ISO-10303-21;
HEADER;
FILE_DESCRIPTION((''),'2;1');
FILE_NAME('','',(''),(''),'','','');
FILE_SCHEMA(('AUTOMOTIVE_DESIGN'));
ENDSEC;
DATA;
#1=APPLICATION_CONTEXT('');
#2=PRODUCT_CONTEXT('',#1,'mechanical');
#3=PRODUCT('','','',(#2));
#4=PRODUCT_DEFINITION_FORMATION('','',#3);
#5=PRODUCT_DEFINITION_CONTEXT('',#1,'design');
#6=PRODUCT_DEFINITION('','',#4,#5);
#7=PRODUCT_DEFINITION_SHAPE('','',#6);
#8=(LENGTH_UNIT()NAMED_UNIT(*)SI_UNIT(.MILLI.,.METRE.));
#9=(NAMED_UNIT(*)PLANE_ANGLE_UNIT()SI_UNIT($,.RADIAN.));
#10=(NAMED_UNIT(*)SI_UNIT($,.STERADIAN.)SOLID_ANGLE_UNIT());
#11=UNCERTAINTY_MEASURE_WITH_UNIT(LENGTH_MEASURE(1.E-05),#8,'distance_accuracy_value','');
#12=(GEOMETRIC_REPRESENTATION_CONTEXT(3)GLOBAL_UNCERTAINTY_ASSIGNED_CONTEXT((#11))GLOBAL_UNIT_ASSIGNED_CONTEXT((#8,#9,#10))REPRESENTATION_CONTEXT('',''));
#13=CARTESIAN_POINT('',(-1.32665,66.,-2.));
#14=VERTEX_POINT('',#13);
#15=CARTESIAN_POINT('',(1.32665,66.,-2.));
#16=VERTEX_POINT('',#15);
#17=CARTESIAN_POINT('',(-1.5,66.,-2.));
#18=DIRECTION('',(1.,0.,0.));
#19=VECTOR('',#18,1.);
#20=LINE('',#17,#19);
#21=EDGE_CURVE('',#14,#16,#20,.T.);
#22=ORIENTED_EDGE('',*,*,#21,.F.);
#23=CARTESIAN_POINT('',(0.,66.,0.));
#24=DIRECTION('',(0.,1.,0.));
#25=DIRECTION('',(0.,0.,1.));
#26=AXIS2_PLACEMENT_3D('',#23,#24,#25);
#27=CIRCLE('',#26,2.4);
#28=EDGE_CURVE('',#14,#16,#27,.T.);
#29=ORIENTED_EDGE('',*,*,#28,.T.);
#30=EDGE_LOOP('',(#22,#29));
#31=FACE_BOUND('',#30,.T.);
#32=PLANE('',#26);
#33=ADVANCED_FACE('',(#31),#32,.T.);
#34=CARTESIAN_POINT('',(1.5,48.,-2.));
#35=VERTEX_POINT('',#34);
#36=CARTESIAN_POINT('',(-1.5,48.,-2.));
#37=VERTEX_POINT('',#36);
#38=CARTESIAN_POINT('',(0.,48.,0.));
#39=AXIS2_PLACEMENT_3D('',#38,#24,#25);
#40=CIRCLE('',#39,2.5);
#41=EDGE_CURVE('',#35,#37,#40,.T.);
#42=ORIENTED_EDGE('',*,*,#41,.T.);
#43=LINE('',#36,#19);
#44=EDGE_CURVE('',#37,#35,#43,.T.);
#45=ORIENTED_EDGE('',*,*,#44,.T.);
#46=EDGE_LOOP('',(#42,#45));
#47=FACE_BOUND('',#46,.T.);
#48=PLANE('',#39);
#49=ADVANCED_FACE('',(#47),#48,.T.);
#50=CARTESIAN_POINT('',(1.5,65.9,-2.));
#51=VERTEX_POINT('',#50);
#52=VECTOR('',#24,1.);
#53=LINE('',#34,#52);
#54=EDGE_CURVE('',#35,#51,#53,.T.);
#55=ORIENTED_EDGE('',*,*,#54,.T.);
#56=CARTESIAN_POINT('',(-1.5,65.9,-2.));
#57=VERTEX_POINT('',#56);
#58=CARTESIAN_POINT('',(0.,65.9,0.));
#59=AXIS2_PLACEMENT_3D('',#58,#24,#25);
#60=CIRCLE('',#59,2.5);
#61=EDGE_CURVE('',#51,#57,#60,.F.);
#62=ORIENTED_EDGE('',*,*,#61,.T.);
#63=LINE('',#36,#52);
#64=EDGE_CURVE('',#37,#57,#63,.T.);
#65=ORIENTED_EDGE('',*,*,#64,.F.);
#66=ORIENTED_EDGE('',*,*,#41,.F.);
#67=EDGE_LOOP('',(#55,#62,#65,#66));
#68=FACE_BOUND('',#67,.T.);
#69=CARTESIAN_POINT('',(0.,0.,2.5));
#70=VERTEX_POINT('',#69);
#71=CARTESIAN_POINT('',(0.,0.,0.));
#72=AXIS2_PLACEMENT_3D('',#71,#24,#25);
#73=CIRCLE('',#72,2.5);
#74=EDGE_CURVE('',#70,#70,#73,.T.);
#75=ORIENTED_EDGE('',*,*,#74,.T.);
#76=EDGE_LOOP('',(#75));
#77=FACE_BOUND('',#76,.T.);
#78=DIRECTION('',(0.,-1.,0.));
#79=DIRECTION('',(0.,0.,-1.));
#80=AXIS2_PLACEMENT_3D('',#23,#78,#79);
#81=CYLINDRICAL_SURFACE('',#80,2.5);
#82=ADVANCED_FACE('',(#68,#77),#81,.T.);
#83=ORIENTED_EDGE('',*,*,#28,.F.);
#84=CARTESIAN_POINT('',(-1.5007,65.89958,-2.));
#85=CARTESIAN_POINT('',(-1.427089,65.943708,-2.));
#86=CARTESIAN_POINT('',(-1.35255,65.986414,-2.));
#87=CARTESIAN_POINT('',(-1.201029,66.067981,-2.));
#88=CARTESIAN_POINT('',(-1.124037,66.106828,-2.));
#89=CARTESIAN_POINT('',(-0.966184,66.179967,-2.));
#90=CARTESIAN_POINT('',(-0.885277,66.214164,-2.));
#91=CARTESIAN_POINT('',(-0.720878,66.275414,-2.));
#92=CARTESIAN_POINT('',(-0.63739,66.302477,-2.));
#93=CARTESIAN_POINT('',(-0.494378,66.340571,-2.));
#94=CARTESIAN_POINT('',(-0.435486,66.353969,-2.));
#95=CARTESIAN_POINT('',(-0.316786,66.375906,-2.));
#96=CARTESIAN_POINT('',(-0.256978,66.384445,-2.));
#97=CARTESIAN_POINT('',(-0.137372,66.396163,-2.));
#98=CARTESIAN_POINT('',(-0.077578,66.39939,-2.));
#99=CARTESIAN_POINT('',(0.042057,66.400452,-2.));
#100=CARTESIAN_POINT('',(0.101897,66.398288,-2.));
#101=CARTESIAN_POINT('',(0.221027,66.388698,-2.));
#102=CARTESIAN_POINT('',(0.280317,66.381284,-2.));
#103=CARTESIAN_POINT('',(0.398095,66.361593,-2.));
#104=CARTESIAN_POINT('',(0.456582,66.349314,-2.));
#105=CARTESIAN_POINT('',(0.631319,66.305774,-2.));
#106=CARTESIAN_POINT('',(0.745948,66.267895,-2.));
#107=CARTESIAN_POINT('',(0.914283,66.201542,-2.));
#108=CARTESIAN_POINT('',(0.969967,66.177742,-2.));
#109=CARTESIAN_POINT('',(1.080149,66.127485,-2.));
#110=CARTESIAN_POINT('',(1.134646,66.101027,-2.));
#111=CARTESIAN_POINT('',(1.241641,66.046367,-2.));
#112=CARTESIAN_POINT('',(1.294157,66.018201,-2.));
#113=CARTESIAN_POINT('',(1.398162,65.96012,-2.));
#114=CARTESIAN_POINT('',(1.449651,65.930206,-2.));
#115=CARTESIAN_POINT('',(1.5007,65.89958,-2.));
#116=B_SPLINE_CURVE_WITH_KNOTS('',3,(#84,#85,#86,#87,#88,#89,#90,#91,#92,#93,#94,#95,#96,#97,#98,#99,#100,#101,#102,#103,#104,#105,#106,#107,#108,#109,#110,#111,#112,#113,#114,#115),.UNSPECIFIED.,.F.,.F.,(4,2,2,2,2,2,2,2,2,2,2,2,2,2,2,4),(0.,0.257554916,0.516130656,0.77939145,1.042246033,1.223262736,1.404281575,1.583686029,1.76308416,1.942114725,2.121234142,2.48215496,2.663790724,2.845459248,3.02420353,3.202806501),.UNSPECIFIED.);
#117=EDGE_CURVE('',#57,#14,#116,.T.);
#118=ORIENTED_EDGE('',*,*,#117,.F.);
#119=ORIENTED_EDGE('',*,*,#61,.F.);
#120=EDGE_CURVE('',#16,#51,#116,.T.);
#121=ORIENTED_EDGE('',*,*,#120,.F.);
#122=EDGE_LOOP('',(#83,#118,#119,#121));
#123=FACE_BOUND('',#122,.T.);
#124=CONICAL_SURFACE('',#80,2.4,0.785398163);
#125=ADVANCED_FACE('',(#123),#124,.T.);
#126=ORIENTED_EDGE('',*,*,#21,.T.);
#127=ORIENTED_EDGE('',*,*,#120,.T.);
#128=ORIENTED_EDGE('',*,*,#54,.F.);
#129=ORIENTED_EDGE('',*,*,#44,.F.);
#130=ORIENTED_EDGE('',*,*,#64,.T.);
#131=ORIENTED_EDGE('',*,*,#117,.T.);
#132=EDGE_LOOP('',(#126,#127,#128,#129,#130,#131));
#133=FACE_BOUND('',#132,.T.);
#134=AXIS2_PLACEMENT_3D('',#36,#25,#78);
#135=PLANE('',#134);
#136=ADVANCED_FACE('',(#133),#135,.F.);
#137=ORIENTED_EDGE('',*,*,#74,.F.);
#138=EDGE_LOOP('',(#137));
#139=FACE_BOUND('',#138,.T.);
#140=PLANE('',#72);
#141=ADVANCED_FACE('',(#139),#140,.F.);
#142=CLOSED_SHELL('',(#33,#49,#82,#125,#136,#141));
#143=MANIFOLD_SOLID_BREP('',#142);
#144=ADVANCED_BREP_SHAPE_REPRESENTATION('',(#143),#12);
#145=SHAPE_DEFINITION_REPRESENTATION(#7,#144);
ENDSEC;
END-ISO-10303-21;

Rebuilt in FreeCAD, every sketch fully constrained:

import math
import FreeCAD as App
import Part
import Sketcher


def edges_at(feature, points):
    """Names of the edges that pass closest to the given points."""
    edges = feature.Shape.Edges
    near = lambda p: min(range(len(edges)), key=lambda i: edges[i].distToShape(Part.Vertex(*p))[0])
    return sorted({f"Edge{near(p) + 1}" for p in points})

doc = App.newDocument("Part")
body = doc.addObject("PartDesign::Body", "Body")

# Sketch on XZ plane
sketch1 = doc.addObject("Sketcher::SketchObject", "Sketch")
body.addObject(sketch1)
sketch1.AttachmentSupport = (doc.XZ_Plane, [""])
sketch1.MapMode = "FlatFace"
sketch1.addGeometry(Part.Circle(App.Vector(0, 0, 0), App.Vector(0, 0, 1), 2.5), False)
sketch1.addConstraint([
    Sketcher.Constraint("Coincident", 0, 3, -1, 1),
    Sketcher.Constraint("Diameter", 0, 5.0),
])
pad1 = doc.addObject("PartDesign::Pad", "Pad")
body.addObject(pad1)
pad1.Profile = sketch1
pad1.Length = 66
pad1.Reversed = True
doc.recompute()

chamfer = doc.addObject("PartDesign::Chamfer", "Chamfer")
body.addObject(chamfer)
chamfer.Base = (pad1, edges_at(pad1, [(0, 66, -2.5)]))
chamfer.Size = 0.1

# Sketch on XZ plane
sketch2 = doc.addObject("Sketcher::SketchObject", "Sketch001")
body.addObject(sketch2)
sketch2.AttachmentSupport = (doc.XZ_Plane, [""])
sketch2.MapMode = "FlatFace"
sketch2.AttachmentOffset = App.Placement(App.Vector(0, 0, -48), App.Rotation())
sketch2.addGeometry([
    Part.LineSegment(App.Vector(-1.5, -2, 0), App.Vector(1.5, -2, 0)),
    Part.ArcOfCircle(Part.Circle(App.Vector(0, 0, 0), App.Vector(0, 0, 1), 2.5), math.radians(-127), math.radians(-53)),
], False)
sketch2.addConstraint([
    Sketcher.Constraint("Coincident", 0, 1, 1, 1),
    Sketcher.Constraint("Coincident", 1, 2, 0, 2),
    Sketcher.Constraint("Horizontal", 0),
    Sketcher.Constraint("Coincident", 1, 3, -1, 1),
    Sketcher.Constraint("Radius", 1, 2.5),
    Sketcher.Constraint("DistanceX", 0, 1, 0, 2, 3.0),
])
pocket1 = doc.addObject("PartDesign::Pocket", "Pocket")
body.addObject(pocket1)
pocket1.Profile = sketch2
pocket1.Length = 18

doc.recompute()
